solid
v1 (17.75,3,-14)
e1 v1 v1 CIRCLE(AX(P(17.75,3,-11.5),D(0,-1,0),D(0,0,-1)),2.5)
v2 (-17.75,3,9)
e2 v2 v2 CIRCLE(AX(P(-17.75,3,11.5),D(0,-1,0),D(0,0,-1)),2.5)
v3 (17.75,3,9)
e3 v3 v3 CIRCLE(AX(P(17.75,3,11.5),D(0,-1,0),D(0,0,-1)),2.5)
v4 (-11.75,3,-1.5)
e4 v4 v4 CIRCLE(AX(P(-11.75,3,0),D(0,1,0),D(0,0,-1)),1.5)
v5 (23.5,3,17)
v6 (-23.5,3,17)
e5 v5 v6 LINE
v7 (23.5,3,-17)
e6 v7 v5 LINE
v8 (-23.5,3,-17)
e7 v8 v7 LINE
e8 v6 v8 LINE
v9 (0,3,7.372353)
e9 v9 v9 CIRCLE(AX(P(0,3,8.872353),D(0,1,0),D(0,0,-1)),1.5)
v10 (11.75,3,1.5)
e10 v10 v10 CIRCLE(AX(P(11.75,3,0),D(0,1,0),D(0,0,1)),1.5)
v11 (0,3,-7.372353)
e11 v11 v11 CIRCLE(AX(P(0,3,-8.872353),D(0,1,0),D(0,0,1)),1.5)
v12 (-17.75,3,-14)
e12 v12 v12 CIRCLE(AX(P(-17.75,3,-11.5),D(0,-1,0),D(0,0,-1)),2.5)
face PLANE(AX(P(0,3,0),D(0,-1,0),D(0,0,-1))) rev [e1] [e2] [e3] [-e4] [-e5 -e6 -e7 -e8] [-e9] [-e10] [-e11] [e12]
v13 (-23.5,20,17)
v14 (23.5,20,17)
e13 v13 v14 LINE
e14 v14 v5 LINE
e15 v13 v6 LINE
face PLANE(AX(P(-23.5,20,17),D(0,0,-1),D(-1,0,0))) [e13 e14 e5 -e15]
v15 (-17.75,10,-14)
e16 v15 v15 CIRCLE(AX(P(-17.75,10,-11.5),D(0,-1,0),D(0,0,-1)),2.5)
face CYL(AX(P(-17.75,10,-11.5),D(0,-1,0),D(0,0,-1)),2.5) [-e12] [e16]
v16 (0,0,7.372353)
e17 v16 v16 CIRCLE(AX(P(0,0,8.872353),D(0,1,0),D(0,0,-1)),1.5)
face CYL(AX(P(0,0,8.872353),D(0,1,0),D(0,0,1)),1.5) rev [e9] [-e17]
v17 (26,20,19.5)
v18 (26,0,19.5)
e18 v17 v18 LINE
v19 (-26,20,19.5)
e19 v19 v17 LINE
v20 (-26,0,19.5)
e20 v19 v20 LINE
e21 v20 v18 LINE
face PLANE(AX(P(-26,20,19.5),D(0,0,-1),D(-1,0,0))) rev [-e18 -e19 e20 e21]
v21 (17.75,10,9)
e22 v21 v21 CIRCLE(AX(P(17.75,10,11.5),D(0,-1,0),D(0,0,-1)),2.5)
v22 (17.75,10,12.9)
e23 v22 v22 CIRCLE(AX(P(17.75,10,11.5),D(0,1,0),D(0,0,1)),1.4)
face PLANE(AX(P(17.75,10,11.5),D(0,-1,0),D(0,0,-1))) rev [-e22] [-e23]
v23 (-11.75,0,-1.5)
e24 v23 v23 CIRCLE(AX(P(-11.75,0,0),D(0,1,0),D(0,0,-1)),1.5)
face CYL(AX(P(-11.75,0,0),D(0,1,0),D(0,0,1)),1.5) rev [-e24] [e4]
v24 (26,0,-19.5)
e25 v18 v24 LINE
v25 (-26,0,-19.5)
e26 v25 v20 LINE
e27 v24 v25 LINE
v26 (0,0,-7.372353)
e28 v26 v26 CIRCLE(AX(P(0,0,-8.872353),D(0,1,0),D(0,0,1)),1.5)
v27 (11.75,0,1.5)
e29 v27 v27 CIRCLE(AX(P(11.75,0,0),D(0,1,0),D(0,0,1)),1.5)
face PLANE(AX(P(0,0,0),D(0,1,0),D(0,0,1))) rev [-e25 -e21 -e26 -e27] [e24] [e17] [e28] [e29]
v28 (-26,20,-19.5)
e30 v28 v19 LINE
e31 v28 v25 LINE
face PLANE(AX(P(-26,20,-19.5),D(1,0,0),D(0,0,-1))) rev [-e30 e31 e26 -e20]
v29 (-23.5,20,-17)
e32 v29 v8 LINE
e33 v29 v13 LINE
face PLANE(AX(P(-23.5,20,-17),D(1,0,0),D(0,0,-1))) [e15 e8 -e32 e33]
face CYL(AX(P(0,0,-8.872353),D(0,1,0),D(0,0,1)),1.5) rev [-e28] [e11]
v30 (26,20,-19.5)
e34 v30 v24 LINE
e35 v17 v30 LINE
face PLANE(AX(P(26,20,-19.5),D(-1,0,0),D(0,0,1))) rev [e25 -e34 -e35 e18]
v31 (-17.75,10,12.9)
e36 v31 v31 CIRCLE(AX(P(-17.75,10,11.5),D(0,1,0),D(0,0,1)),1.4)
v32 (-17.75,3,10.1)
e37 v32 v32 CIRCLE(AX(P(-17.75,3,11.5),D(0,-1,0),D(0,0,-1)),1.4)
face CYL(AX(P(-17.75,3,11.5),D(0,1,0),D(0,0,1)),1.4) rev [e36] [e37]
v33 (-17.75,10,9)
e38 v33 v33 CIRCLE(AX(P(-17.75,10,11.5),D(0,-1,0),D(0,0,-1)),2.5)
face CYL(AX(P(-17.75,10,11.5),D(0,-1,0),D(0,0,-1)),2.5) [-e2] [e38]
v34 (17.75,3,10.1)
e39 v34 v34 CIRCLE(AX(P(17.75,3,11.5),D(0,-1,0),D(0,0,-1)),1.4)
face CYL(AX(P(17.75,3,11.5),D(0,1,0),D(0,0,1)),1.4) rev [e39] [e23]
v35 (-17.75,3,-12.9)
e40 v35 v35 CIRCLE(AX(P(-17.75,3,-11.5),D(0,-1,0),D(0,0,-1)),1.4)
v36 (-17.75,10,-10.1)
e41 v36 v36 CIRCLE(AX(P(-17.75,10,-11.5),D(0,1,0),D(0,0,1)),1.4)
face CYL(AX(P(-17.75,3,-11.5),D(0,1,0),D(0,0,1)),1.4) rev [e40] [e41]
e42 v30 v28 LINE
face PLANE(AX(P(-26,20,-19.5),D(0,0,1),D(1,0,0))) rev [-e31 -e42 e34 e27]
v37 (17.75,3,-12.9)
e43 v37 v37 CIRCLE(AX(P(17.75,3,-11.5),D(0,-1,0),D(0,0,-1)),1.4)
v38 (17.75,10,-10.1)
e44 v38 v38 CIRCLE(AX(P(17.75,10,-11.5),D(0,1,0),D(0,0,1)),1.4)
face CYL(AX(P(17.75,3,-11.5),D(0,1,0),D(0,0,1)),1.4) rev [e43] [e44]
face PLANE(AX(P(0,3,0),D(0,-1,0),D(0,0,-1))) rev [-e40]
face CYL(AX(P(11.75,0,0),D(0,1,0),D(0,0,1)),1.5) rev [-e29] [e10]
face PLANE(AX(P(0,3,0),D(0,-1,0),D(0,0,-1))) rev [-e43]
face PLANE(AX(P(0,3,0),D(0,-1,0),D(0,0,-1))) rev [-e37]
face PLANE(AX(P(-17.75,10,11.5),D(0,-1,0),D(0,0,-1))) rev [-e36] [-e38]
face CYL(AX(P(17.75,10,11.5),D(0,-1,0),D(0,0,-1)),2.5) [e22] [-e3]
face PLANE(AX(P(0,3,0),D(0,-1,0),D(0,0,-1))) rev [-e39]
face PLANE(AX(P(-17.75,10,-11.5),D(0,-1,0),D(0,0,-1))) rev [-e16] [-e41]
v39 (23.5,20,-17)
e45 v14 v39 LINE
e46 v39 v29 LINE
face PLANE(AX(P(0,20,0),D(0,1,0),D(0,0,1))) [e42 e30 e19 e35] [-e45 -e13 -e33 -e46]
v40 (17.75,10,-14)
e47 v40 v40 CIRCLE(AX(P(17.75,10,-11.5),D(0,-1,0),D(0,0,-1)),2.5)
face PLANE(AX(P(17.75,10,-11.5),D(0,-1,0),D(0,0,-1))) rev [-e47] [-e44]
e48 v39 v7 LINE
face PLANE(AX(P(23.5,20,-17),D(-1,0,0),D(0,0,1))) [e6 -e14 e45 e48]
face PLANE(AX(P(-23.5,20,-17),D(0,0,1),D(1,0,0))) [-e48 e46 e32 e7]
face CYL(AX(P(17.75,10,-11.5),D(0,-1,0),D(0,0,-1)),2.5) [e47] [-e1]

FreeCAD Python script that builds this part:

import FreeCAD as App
import Part
import Sketcher

V = App.Vector


def add_polygon(sketch, points):
    """Adds a closed chain of lines whose ends are joined by coincident constraints."""
    first, n = sketch.GeometryCount, len(points)
    for a, b in zip(points, points[1:] + points[:1]):
        sketch.addGeometry(Part.LineSegment(App.Vector(*a, 0), App.Vector(*b, 0)), False)
    for i in range(n):
        sketch.addConstraint(Sketcher.Constraint("Coincident", first + i, 2, first + (i + 1) % n, 1))

doc = App.newDocument("Part")
body = doc.addObject("PartDesign::Body", "Body")

sketch1 = body.newObject("Sketcher::SketchObject", "Sketch")
sketch1.AttachmentSupport = (doc.getObject("XZ_Plane"), [""])
sketch1.MapMode = "FlatFace"
add_polygon(sketch1, [(-26, -20), (-26, 20), (26, 20), (26, -20)])
add_polygon(sketch1, [(24, 17), (-24, 17), (-24, -17), (24, -17)])
sketch1.addConstraint([
    Sketcher.Constraint("Vertical", 0),
    Sketcher.Constraint("Horizontal", 1),
    Sketcher.Constraint("Vertical", 2),
    Sketcher.Constraint("Horizontal", 3),
    Sketcher.Constraint("Horizontal", 4),
    Sketcher.Constraint("Vertical", 5),
    Sketcher.Constraint("Horizontal", 6),
    Sketcher.Constraint("Vertical", 7),
    Sketcher.Constraint("Symmetric", 0, 2, 2, 2, -1, 1),
    Sketcher.Constraint("Symmetric", 4, 2, 6, 2, -1, 1),
    Sketcher.Constraint("DistanceX", 1, 1, 1, 2, 52.0),
    Sketcher.Constraint("DistanceX", 4, 2, 4, 1, 47.0),
    Sketcher.Constraint("DistanceY", 0, 1, 0, 2, 39.0),
    Sketcher.Constraint("DistanceY", 5, 2, 5, 1, 34.0),
])
pad1 = body.newObject("PartDesign::Pad", "Pad")
pad1.Profile = sketch1
pad1.Length = 20
pad1.Reversed = True
body2 = doc.addObject("PartDesign::Body", "Body001")

sketch2 = body2.newObject("Sketcher::SketchObject", "Sketch001")
sketch2.AttachmentSupport = (doc.getObject("XZ_Plane001"), [""])
sketch2.MapMode = "FlatFace"
sketch2.addGeometry(Part.Circle(V(-17.8, 11.5, 0), V(0, 0, 1), 2.5), False)
sketch2.addConstraint([
    Sketcher.Constraint("Diameter", 0, 5.0),
    Sketcher.Constraint("DistanceY", -1, 1, 0, 3, 11.5),
    Sketcher.Constraint("DistanceX", 0, 3, -1, 1, 17.75),
])
pad2 = body2.newObject("PartDesign::Pad", "Pad001")
pad2.Profile = sketch2
pad2.Length = 10
pad2.Reversed = True
body3 = doc.addObject("PartDesign::Body", "Body002")

sketch3 = body3.newObject("Sketcher::SketchObject", "Sketch002")
sketch3.AttachmentSupport = (doc.getObject("XZ_Plane002"), [""])
sketch3.MapMode = "FlatFace"
sketch3.addGeometry(Part.Circle(V(17.8, 11.5, 0), V(0, 0, 1), 2.5), False)
sketch3.addConstraint([
    Sketcher.Constraint("Diameter", 0, 5.0),
    Sketcher.Constraint("DistanceY", -1, 1, 0, 3, 11.5),
    Sketcher.Constraint("DistanceX", -1, 1, 0, 3, 17.75),
])
pad3 = body3.newObject("PartDesign::Pad", "Pad002")
pad3.Profile = sketch3
pad3.Length = 10
pad3.Reversed = True
body4 = doc.addObject("PartDesign::Body", "Body003")

sketch4 = body4.newObject("Sketcher::SketchObject", "Sketch003")
sketch4.AttachmentSupport = (doc.getObject("XZ_Plane003"), [""])
sketch4.MapMode = "FlatFace"
sketch4.addGeometry(Part.Circle(V(-17.8, -11.5, 0), V(0, 0, 1), 2.5), False)
sketch4.addConstraint([
    Sketcher.Constraint("Diameter", 0, 5.0),
    Sketcher.Constraint("DistanceY", 0, 3, -1, 1, 11.5),
    Sketcher.Constraint("DistanceX", 0, 3, -1, 1, 17.75),
])
pad4 = body4.newObject("PartDesign::Pad", "Pad003")
pad4.Profile = sketch4
pad4.Length = 10
pad4.Reversed = True
body5 = doc.addObject("PartDesign::Body", "Body004")

sketch5 = body5.newObject("Sketcher::SketchObject", "Sketch004")
sketch5.AttachmentSupport = (doc.getObject("XZ_Plane004"), [""])
sketch5.MapMode = "FlatFace"
sketch5.addGeometry(Part.Circle(V(17.8, -11.5, 0), V(0, 0, 1), 2.5), False)
sketch5.addConstraint([
    Sketcher.Constraint("Diameter", 0, 5.0),
    Sketcher.Constraint("DistanceY", 0, 3, -1, 1, 11.5),
    Sketcher.Constraint("DistanceX", -1, 1, 0, 3, 17.75),
])
pad5 = body5.newObject("PartDesign::Pad", "Pad004")
pad5.Profile = sketch5
pad5.Length = 10
pad5.Reversed = True
body6 = doc.addObject("PartDesign::Body", "Body005")
body6.AllowCompound = True

sketch6 = body6.newObject("Sketcher::SketchObject", "Sketch005")
sketch6.AttachmentSupport = (doc.getObject("XZ_Plane005"), [""])
sketch6.MapMode = "FlatFace"
sketch6.AttachmentOffset = App.Placement(V(0, 0, -10), App.Rotation())
sketch6.addGeometry([
    Part.Circle(V(-17.8, -11.5, 0), V(0, 0, 1), 1.4),
    Part.Circle(V(17.8, -11.5, 0), V(0, 0, 1), 1.4),
    Part.Circle(V(-17.8, 11.5, 0), V(0, 0, 1), 1.4),
    Part.Circle(V(17.8, 11.5, 0), V(0, 0, 1), 1.4),
], False)
sketch6.addConstraint([
    Sketcher.Constraint("Equal", 0, 1),
    Sketcher.Constraint("Equal", 1, 2),
    Sketcher.Constraint("Equal", 2, 3),
    Sketcher.Constraint("Symmetric", 1, 3, 2, 3, -1, 1),
    Sketcher.Constraint("Symmetric", 0, 3, 3, 3, -1, 1),
    Sketcher.Constraint("Symmetric", 0, 3, 1, 3, -2),
    Sketcher.Constraint("Diameter", 0, 2.8),
    Sketcher.Constraint("DistanceY", 0, 3, 2, 3, 23.0),
    Sketcher.Constraint("DistanceX", 0, 3, 1, 3, 35.5),
])
pad6 = body6.newObject("PartDesign::Pad", "Pad005")
pad6.Profile = sketch6
pad6.Length = 7
doc.recompute()

body7 = doc.addObject("PartDesign::Body", "Body006")
body7.BaseFeature = body6
boolean = body2.newObject("PartDesign::Boolean", "Boolean")
boolean.Type = "Cut"
boolean.addObjects([body7])
doc.recompute()

body8 = doc.addObject("PartDesign::Body", "Body007")
body8.BaseFeature = body6
boolean2 = body3.newObject("PartDesign::Boolean", "Boolean001")
boolean2.Type = "Cut"
boolean2.addObjects([body8])
doc.recompute()

body9 = doc.addObject("PartDesign::Body", "Body008")
body9.BaseFeature = body6
boolean3 = body4.newObject("PartDesign::Boolean", "Boolean002")
boolean3.Type = "Cut"
boolean3.addObjects([body9])
doc.recompute()

boolean4 = body5.newObject("PartDesign::Boolean", "Boolean003")
boolean4.Type = "Cut"
boolean4.addObjects([body6])
body.AllowCompound = True
doc.recompute()

boolean5 = body.newObject("PartDesign::Boolean", "Boolean004")
boolean5.Type = "Fuse"
boolean5.addObjects([body2])
doc.recompute()

boolean6 = body.newObject("PartDesign::Boolean", "Boolean005")
boolean6.Type = "Fuse"
boolean6.addObjects([body3])
doc.recompute()

boolean7 = body.newObject("PartDesign::Boolean", "Boolean006")
boolean7.Type = "Fuse"
boolean7.addObjects([body4])
doc.recompute()

boolean8 = body.newObject("PartDesign::Boolean", "Boolean007")
boolean8.Type = "Fuse"
boolean8.addObjects([body5])

sketch7 = body.newObject("Sketcher::SketchObject", "Sketch006")
sketch7.AttachmentSupport = (doc.getObject("XZ_Plane"), [""])
sketch7.MapMode = "FlatFace"
add_polygon(sketch7, [(-26, 20), (-26, -20), (26, -20), (26, 20)])
sketch7.addConstraint([
    Sketcher.Constraint("Vertical", 0),
    Sketcher.Constraint("Horizontal", 1),
    Sketcher.Constraint("Vertical", 2),
    Sketcher.Constraint("Horizontal", 3),
    Sketcher.Constraint("Symmetric", 0, 2, 2, 2, -1, 1),
    Sketcher.Constraint("DistanceX", 1, 1, 1, 2, 52.0),
    Sketcher.Constraint("DistanceY", 0, 2, 0, 1, 39.0),
])
pad7 = body.newObject("PartDesign::Pad", "Pad006")
pad7.Profile = sketch7
pad7.Length = 3
pad7.Reversed = True

sketch8 = body.newObject("Sketcher::SketchObject", "Sketch007")
sketch8.AttachmentSupport = (doc.getObject("XZ_Plane"), [""])
sketch8.MapMode = "FlatFace"
sketch8.AttachmentOffset = App.Placement(V(0, 0, -3), App.Rotation())
sketch8.addGeometry([
    Part.Circle(V(0, -8.9, 0), V(0, 0, 1), 1.5),
    Part.Circle(V(11.8, 0, 0), V(0, 0, 1), 1.5),
    Part.Circle(V(0, 8.9, 0), V(0, 0, 1), 1.5),
    Part.Circle(V(-11.8, 0, 0), V(0, 0, 1), 1.5),
], False)
sketch8.addConstraint([
    Sketcher.Constraint("Equal", 0, 1),
    Sketcher.Constraint("Equal", 1, 2),
    Sketcher.Constraint("Equal", 2, 3),
    Sketcher.Constraint("Symmetric", 0, 3, 2, 3, -1, 1),
    Sketcher.Constraint("Symmetric", 1, 3, 3, 3, -1, 1),
    Sketcher.Constraint("PointOnObject", 0, 3, -2),
    Sketcher.Constraint("PointOnObject", 1, 3, -1),
    Sketcher.Constraint("Diameter", 0, 3.0),
    Sketcher.Constraint("DistanceX", 3, 3, 1, 3, 23.5),
    Sketcher.Constraint("DistanceY", 0, 3, -1, 1, 8.872353),
])
pocket1 = body.newObject("PartDesign::Pocket", "Pocket")
pocket1.Profile = sketch8
pocket1.Type = "ThroughAll"
pocket1.Reversed = True

doc.recompute()
